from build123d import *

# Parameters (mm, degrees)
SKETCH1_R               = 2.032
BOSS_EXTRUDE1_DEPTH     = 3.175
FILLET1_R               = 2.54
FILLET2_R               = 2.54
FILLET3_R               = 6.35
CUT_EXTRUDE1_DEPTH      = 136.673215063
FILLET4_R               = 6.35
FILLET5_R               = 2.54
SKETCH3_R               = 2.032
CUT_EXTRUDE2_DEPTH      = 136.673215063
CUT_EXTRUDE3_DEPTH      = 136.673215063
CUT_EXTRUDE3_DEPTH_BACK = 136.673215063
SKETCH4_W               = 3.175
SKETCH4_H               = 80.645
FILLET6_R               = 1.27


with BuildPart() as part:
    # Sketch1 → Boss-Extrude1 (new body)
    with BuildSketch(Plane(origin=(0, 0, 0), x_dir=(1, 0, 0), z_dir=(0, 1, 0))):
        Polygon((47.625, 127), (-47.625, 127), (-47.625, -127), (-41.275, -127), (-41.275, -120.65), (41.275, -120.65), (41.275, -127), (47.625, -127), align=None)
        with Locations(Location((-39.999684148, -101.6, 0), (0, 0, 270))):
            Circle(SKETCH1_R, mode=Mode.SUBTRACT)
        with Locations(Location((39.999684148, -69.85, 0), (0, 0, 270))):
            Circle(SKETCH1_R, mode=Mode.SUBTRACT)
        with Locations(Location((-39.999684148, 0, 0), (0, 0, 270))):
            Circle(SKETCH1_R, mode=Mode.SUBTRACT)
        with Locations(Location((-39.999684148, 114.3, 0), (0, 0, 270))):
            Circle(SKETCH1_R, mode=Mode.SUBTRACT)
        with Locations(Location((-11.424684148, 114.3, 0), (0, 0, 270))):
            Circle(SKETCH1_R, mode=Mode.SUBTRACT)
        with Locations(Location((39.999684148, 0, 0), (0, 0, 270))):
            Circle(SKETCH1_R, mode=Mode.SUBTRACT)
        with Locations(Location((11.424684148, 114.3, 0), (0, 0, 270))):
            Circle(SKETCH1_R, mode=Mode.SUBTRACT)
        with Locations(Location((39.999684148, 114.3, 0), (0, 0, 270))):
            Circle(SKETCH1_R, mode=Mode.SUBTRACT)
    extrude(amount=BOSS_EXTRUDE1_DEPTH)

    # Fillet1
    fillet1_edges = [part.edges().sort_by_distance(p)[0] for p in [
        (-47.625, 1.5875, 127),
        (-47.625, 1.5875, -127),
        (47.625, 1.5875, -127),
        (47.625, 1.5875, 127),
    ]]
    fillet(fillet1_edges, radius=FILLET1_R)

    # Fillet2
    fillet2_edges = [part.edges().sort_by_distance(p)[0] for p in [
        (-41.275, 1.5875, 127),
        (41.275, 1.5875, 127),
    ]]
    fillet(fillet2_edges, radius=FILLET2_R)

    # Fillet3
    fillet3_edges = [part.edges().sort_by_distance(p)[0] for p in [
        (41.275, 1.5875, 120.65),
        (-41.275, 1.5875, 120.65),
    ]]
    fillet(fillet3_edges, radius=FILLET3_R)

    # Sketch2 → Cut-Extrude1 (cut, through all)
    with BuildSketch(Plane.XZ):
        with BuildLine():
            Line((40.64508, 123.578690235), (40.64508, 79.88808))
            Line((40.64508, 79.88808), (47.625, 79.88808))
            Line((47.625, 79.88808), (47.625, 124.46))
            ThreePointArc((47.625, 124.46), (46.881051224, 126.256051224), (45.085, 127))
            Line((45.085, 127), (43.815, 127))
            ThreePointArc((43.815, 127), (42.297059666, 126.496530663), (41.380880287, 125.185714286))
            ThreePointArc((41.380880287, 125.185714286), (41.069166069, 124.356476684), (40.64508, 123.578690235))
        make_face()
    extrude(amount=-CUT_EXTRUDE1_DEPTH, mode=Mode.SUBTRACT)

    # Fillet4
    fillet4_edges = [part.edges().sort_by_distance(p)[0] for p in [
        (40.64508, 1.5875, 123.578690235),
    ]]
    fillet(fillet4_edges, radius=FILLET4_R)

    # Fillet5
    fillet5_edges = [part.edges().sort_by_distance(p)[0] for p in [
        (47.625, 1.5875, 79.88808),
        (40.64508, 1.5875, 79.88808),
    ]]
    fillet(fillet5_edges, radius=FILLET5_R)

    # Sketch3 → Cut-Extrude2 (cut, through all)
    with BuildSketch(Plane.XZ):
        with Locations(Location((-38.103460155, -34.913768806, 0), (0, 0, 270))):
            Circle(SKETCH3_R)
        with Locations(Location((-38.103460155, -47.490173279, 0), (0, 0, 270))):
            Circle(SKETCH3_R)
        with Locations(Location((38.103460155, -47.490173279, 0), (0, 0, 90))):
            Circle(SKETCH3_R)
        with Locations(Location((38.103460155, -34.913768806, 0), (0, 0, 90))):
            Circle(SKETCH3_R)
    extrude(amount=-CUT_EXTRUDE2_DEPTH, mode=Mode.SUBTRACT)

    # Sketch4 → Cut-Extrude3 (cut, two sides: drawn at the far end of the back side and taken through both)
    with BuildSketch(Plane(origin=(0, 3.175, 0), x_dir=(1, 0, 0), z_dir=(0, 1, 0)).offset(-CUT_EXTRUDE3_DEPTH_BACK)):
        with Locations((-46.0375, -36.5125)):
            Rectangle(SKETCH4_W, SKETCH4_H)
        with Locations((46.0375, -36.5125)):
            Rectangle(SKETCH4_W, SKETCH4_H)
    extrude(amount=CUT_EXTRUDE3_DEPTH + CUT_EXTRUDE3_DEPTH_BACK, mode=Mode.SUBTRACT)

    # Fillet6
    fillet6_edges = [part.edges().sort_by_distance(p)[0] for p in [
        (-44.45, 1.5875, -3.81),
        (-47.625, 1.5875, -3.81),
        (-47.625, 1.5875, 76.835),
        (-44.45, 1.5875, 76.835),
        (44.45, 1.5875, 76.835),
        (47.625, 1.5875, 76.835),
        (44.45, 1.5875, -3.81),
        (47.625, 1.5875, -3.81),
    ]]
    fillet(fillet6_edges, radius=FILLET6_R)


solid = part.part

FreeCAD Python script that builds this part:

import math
import FreeCAD as App
import Part
import Sketcher

V = App.Vector
Q = App.Units.Quantity


def edges_at(feature, points):
    """Names of the edges that pass closest to the given points."""
    edges = feature.Shape.Edges
    near = lambda p: min(range(len(edges)), key=lambda i: edges[i].distToShape(Part.Vertex(*p))[0])
    return sorted({f"Edge{near(p) + 1}" for p in points})


def add_polygon(sketch, points):
    """Adds a closed chain of lines whose ends are joined by coincident constraints."""
    first, n = sketch.GeometryCount, len(points)
    for a, b in zip(points, points[1:] + points[:1]):
        sketch.addGeometry(Part.LineSegment(App.Vector(*a, 0), App.Vector(*b, 0)), False)
    for i in range(n):
        sketch.addConstraint(Sketcher.Constraint("Coincident", first + i, 2, first + (i + 1) % n, 1))

doc = App.newDocument("Part")
body = doc.addObject("PartDesign::Body", "Body")

# Sketch on XZ plane
sketch1 = doc.addObject("Sketcher::SketchObject", "Sketch")
body.addObject(sketch1)
sketch1.AttachmentSupport = (doc.XZ_Plane, [""])
sketch1.MapMode = "FlatFace"
add_polygon(sketch1, [(47.6, -127), (-47.6, -127), (-47.6, 127), (-41.3, 127), (-41.3, 120.7), (41.3, 120.7), (41.3, 127), (47.6, 127)])  # lines 0-7
sketch1.addGeometry(Part.Circle(V(-40, 101.6, 0), V(0, 0, 1), 2), False)  # 8
sketch1.addGeometry(Part.Circle(V(-40, 0, 0), V(0, 0, 1), 2), False)  # 9
sketch1.addGeometry(Part.Circle(V(40, 69.8, 0), V(0, 0, 1), 2), False)  # 10
sketch1.addGeometry(Part.Circle(V(40, 0, 0), V(0, 0, 1), 2), False)  # 11
sketch1.addGeometry(Part.Circle(V(-40, -114.3, 0), V(0, 0, 1), 2), False)  # 12
sketch1.addGeometry(Part.Circle(V(-11.4, -114.3, 0), V(0, 0, 1), 2), False)  # 13
sketch1.addGeometry(Part.Circle(V(11.4, -114.3, 0), V(0, 0, 1), 2), False)  # 14
sketch1.addGeometry(Part.Circle(V(40, -114.3, 0), V(0, 0, 1), 2), False)  # 15
sketch1.addConstraint(Sketcher.Constraint("Horizontal", 0))
sketch1.addConstraint(Sketcher.Constraint("Vertical", 1))
sketch1.addConstraint(Sketcher.Constraint("Horizontal", 2))
sketch1.addConstraint(Sketcher.Constraint("Vertical", 3))
sketch1.addConstraint(Sketcher.Constraint("Horizontal", 4))
sketch1.addConstraint(Sketcher.Constraint("Vertical", 5))
sketch1.addConstraint(Sketcher.Constraint("Horizontal", 6))
sketch1.addConstraint(Sketcher.Constraint("Vertical", 7))
sketch1.addConstraint(Sketcher.Constraint("Equal", 8, 9))
sketch1.addConstraint(Sketcher.Constraint("Equal", 9, 10))
sketch1.addConstraint(Sketcher.Constraint("Equal", 10, 11))
sketch1.addConstraint(Sketcher.Constraint("Equal", 11, 12))
sketch1.addConstraint(Sketcher.Constraint("Equal", 12, 13))
sketch1.addConstraint(Sketcher.Constraint("Equal", 13, 14))
sketch1.addConstraint(Sketcher.Constraint("Equal", 14, 15))
sketch1.addConstraint(Sketcher.Constraint("Symmetric", 9, 3, 11, 3, -1, 1))
sketch1.addConstraint(Sketcher.Constraint("Symmetric", 0, 2, 6, 2, -1, 1))
sketch1.addConstraint(Sketcher.Constraint("Symmetric", 13, 3, 14, 3, -2))
sketch1.addConstraint(Sketcher.Constraint("Symmetric", 12, 3, 15, 3, -2))
sketch1.addConstraint(Sketcher.Constraint("Symmetric", 2, 2, 5, 2, -2))
sketch1.addConstraint(Sketcher.Constraint("PointOnObject", 9, 3, -1))
sketch1.addConstraint(Sketcher.Constraint("Horizontal", 12, 3, 13, 3))
sketch1.addConstraint(Sketcher.Constraint("Vertical", 8, 3, 9, 3))
sketch1.addConstraint(Sketcher.Constraint("Vertical", 10, 3, 11, 3))
sketch1.addConstraint(Sketcher.Constraint("Vertical", 9, 3, 12, 3))
sketch1.addConstraint(Sketcher.Constraint("Equal", 6, 3))
sketch1.addConstraint(Sketcher.Constraint("Diameter", 8, Q("0.16 in")))
sketch1.addConstraint(Sketcher.Constraint("DistanceY", 1, 1, 1, 2, Q("10 in")))
sketch1.addConstraint(Sketcher.Constraint("DistanceY", -1, 1, 8, 3, Q("4 in")))
sketch1.addConstraint(Sketcher.Constraint("DistanceY", 10, 3, 3, 2, Q("2 in")))
sketch1.addConstraint(Sketcher.Constraint("DistanceX", 0, 2, 0, 1, Q("3.75 in")))
sketch1.addConstraint(Sketcher.Constraint("DistanceX", 2, 1, 2, 2, Q("0.25 in")))
sketch1.addConstraint(Sketcher.Constraint("DistanceY", 12, 3, -1, 1, Q("4.5 in")))
sketch1.addConstraint(Sketcher.Constraint("DistanceX", 12, 3, 13, 3, Q("1.125 in")))
sketch1.addConstraint(Sketcher.Constraint("DistanceX", 8, 3, 10, 3, Q("79.999368 mm")))
pad1 = doc.addObject("PartDesign::Pad", "Pad")
body.addObject(pad1)
pad1.Profile = sketch1
pad1.Length = Q("0.125 in")
pad1.Reversed = True
doc.recompute()

fillet = doc.addObject("PartDesign::Fillet", "Fillet")
body.addObject(fillet)
fillet.Base = (pad1, edges_at(pad1, [
    (-47.625, 1.587, 127),
    (-47.625, 1.587, -127),
    (47.625, 1.587, -127),
    (47.625, 1.587, 127),
]))
fillet.Radius = Q("0.1 in")
doc.recompute()

fillet2 = doc.addObject("PartDesign::Fillet", "Fillet001")
body.addObject(fillet2)
fillet2.Base = (fillet, edges_at(fillet, [(-41.275, 1.587, 127), (41.275, 1.587, 127)]))
fillet2.Radius = Q("0.1 in")
doc.recompute()

fillet3 = doc.addObject("PartDesign::Fillet", "Fillet002")
body.addObject(fillet3)
fillet3.Base = (fillet2, edges_at(fillet2, [(41.275, 1.587, 120.65), (-41.275, 1.587, 120.65)]))
fillet3.Radius = Q("0.25 in")

# Sketch on XZ plane
sketch2 = doc.addObject("Sketcher::SketchObject", "Sketch001")
body.addObject(sketch2)
sketch2.AttachmentSupport = (doc.XZ_Plane, [""])
sketch2.MapMode = "FlatFace"
sketch2.addGeometry(Part.LineSegment(V(40.6, 123.6, 0), V(40.6, 79.9, 0)), False)
sketch2.addGeometry(Part.LineSegment(V(40.6, 79.9, 0), V(47.6, 79.9, 0)), False)
sketch2.addGeometry(Part.LineSegment(V(47.6, 79.9, 0), V(47.6, 124.5, 0)), False)
sketch2.addGeometry(Part.ArcOfCircle(Part.Circle(V(45.1, 124.5, 0), V(0, 0, 1), 2.5), math.radians(0), math.radians(90)), False)
sketch2.addGeometry(Part.LineSegment(V(45.1, 127, 0), V(43.8, 127, 0)), False)
sketch2.addGeometry(Part.ArcOfCircle(Part.Circle(V(43.8, 124.5, 0), V(0, 0, 1), 2.5), math.radians(90), math.radians(163)), False)
sketch2.addGeometry(Part.ArcOfCircle(Part.Circle(V(35.3, 127, 0), V(0, 0, 1), 6.3), math.radians(-32.6), math.radians(-16.6)), False)
sketch2.addConstraint(Sketcher.Constraint("Coincident", 0, 2, 1, 1))
sketch2.addConstraint(Sketcher.Constraint("Coincident", 1, 2, 2, 1))
sketch2.addConstraint(Sketcher.Constraint("Tangent", 2, 2, 3, 1))
sketch2.addConstraint(Sketcher.Constraint("Tangent", 3, 2, 4, 1))
sketch2.addConstraint(Sketcher.Constraint("Tangent", 4, 2, 5, 1))
sketch2.addConstraint(Sketcher.Constraint("Tangent", 5, 2, 6, 2))
sketch2.addConstraint(Sketcher.Constraint("Coincident", 6, 1, 0, 1))
sketch2.addConstraint(Sketcher.Constraint("Vertical", 0))
sketch2.addConstraint(Sketcher.Constraint("Horizontal", 1))
sketch2.addConstraint(Sketcher.Constraint("Vertical", 2))
sketch2.addConstraint(Sketcher.Constraint("Horizontal", 4))
sketch2.addConstraint(Sketcher.Constraint("Equal", 3, 5))
sketch2.addConstraint(Sketcher.Constraint("Horizontal", 6, 3, 3, 2))
sketch2.addConstraint(Sketcher.Constraint("Radius", 3, Q("0.1 in")))
sketch2.addConstraint(Sketcher.Constraint("Radius", 6, Q("0.25 in")))
sketch2.addConstraint(Sketcher.Constraint("DistanceY", -1, 1, 6, 3, Q("5 in")))
sketch2.addConstraint(Sketcher.Constraint("DistanceX", 4, 2, 4, 1, Q("0.05 in")))
sketch2.addConstraint(Sketcher.Constraint("DistanceX", 1, 1, 1, 2, Q("0.2748 in")))
sketch2.addConstraint(Sketcher.Constraint("DistanceY", 2, 1, 2, 2, Q("1.7548 in")))
sketch2.addConstraint(Sketcher.Constraint("DistanceX", -1, 1, 3, 3, Q("1.775 in")))
pocket1 = doc.addObject("PartDesign::Pocket", "Pocket")
body.addObject(pocket1)
pocket1.Profile = sketch2
pocket1.Type = "ThroughAll"
doc.recompute()

fillet4 = doc.addObject("PartDesign::Fillet", "Fillet003")
body.addObject(fillet4)
fillet4.Base = (pocket1, edges_at(pocket1, [(40.645, 1.587, 123.579)]))
fillet4.Radius = Q("0.25 in")
doc.recompute()

fillet5 = doc.addObject("PartDesign::Fillet", "Fillet004")
body.addObject(fillet5)
fillet5.Base = (fillet4, edges_at(fillet4, [(47.625, 1.587, 79.888), (40.645, 1.587, 79.888)]))
fillet5.Radius = Q("0.1 in")

# Sketch on XZ plane
sketch3 = doc.addObject("Sketcher::SketchObject", "Sketch002")
body.addObject(sketch3)
sketch3.AttachmentSupport = (doc.XZ_Plane, [""])
sketch3.MapMode = "FlatFace"
sketch3.addGeometry(Part.Circle(V(-38.1, -34.9, 0), V(0, 0, 1), 2), False)
sketch3.addGeometry(Part.Circle(V(-38.1, -47.5, 0), V(0, 0, 1), 2), False)
sketch3.addGeometry(Part.Circle(V(38.1, -47.5, 0), V(0, 0, 1), 2), False)
sketch3.addGeometry(Part.Circle(V(38.1, -34.9, 0), V(0, 0, 1), 2), False)
sketch3.addConstraint(Sketcher.Constraint("Equal", 0, 1))
sketch3.addConstraint(Sketcher.Constraint("Equal", 1, 2))
sketch3.addConstraint(Sketcher.Constraint("Equal", 2, 3))
sketch3.addConstraint(Sketcher.Constraint("Symmetric", 1, 3, 2, 3, -2))
sketch3.addConstraint(Sketcher.Constraint("Symmetric", 0, 3, 3, 3, -2))
sketch3.addConstraint(Sketcher.Constraint("Vertical", 0, 3, 1, 3))
sketch3.addConstraint(Sketcher.Constraint("Diameter", 0, Q("0.16 in")))
sketch3.addConstraint(Sketcher.Constraint("DistanceX", 0, 3, -1, 1, Q("38.10346 mm")))
sketch3.addConstraint(Sketcher.Constraint("DistanceY", 0, 3, -1, 1, Q("34.913769 mm")))
sketch3.addConstraint(Sketcher.Constraint("DistanceY", 1, 3, -1, 1, Q("47.490173 mm")))
pocket2 = doc.addObject("PartDesign::Pocket", "Pocket001")
body.addObject(pocket2)
pocket2.Profile = sketch3
pocket2.Type = "ThroughAll"

# Sketch on XZ plane
sketch4 = doc.addObject("Sketcher::SketchObject", "Sketch003")
body.addObject(sketch4)
sketch4.AttachmentSupport = (doc.XZ_Plane, [""])
sketch4.MapMode = "FlatFace"
sketch4.AttachmentOffset = App.Placement(V(0, 0, -0.125 * 25.4), App.Rotation())
add_polygon(sketch4, [(-47.6, -3.8), (-47.6, 76.8), (-44.5, 76.8), (-44.5, -3.8)])  # lines 0-3
add_polygon(sketch4, [(44.5, -3.8), (44.5, 76.8), (47.6, 76.8), (47.6, -3.8)])  # lines 4-7
sketch4.addConstraint(Sketcher.Constraint("Vertical", 0))
sketch4.addConstraint(Sketcher.Constraint("Horizontal", 1))
sketch4.addConstraint(Sketcher.Constraint("Vertical", 2))
sketch4.addConstraint(Sketcher.Constraint("Horizontal", 3))
sketch4.addConstraint(Sketcher.Constraint("Vertical", 4))
sketch4.addConstraint(Sketcher.Constraint("Horizontal", 5))
sketch4.addConstraint(Sketcher.Constraint("Vertical", 6))
sketch4.addConstraint(Sketcher.Constraint("Horizontal", 7))
sketch4.addConstraint(Sketcher.Constraint("Symmetric", 1, 2, 4, 2, -2))
sketch4.addConstraint(Sketcher.Constraint("Symmetric", 3, 2, 6, 2, -2))
sketch4.addConstraint(Sketcher.Constraint("DistanceX", 1, 2, 4, 2, Q("3.5 in")))
sketch4.addConstraint(Sketcher.Constraint("DistanceX", 1, 1, 1, 2, Q("0.125 in")))
sketch4.addConstraint(Sketcher.Constraint("DistanceY", 0, 1, 0, 2, Q("3.175 in")))
sketch4.addConstraint(Sketcher.Constraint("DistanceY", 2, 2, -1, 1, Q("0.15 in")))
pocket3 = doc.addObject("PartDesign::Pocket", "Pocket002")
body.addObject(pocket3)
pocket3.Profile = sketch4
pocket3.Type = "ThroughAll"
pocket3.Midplane = True
doc.recompute()

fillet6 = doc.addObject("PartDesign::Fillet", "Fillet005")
body.addObject(fillet6)
fillet6.Base = (pocket3, edges_at(pocket3, [
    (-44.45, 1.587, -3.81),
    (-47.625, 1.587, -3.81),
    (-47.625, 1.587, 76.835),
    (-44.45, 1.587, 76.835),
    (44.45, 1.587, 76.835),
    (47.625, 1.587, 76.835),
    (44.45, 1.587, -3.81),
    (47.625, 1.587, -3.81),
]))
fillet6.Radius = Q("0.05 in")

doc.recompute()
